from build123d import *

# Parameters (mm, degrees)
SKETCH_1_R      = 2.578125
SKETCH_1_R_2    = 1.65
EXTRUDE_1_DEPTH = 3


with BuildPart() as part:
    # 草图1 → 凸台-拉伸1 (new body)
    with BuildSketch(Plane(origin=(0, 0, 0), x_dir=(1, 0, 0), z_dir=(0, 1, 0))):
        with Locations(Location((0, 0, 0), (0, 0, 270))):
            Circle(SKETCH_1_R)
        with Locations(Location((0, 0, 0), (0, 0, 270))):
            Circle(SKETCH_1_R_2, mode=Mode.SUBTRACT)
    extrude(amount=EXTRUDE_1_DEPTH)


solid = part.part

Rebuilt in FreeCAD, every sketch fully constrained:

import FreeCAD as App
import Part
import Sketcher

doc = App.newDocument("Part")
body = doc.addObject("PartDesign::Body", "Body")

# Sketch on XZ plane
sketch1 = body.newObject("Sketcher::SketchObject", "Sketch")
sketch1.AttachmentSupport = (doc.getObject("XZ_Plane"), [""])
sketch1.MapMode = "FlatFace"
sketch1.addGeometry([
    Part.Circle(App.Vector(0, 0, 0), App.Vector(0, 0, 1), 2.6),
    Part.Circle(App.Vector(0, 0, 0), App.Vector(0, 0, 1), 1.6),
], False)
sketch1.addConstraint([
    Sketcher.Constraint("Coincident", 0, 3, -1, 1),
    Sketcher.Constraint("Coincident", 1, 3, -1, 1),
    Sketcher.Constraint("Diameter", 1, 3.3),
    Sketcher.Constraint("Diameter", 0, 5.15625),
])
pad1 = body.newObject("PartDesign::Pad", "Pad")
pad1.Profile = sketch1
pad1.Length = 3
pad1.Reversed = True

doc.recompute()
